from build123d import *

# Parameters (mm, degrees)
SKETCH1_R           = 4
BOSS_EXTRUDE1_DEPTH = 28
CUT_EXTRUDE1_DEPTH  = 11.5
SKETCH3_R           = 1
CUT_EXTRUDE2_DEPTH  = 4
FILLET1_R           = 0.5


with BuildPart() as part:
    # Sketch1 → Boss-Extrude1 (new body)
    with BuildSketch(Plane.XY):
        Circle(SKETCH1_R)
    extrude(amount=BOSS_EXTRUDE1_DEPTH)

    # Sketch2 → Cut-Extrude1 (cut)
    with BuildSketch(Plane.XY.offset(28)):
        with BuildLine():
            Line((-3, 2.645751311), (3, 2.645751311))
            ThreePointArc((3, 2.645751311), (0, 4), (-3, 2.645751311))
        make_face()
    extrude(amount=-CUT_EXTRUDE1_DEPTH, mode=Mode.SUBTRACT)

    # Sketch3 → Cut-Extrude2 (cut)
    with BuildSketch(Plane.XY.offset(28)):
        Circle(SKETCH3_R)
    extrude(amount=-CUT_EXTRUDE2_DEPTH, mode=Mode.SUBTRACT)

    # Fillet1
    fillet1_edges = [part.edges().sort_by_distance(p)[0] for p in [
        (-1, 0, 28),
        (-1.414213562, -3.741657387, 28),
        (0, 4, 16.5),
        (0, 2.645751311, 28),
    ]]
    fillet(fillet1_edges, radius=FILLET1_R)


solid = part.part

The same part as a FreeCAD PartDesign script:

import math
import FreeCAD as App
import Part
import Sketcher
from FreeCAD import Vector


def edges_at(feature, points):
    """Names of the edges that pass closest to the given points."""
    edges = feature.Shape.Edges
    near = lambda p: min(range(len(edges)), key=lambda i: edges[i].distToShape(Part.Vertex(*p))[0])
    return sorted({f"Edge{near(p) + 1}" for p in points})

doc = App.newDocument("Part")
params = doc.addObject("Spreadsheet::Sheet", "Params")
for row, (alias, value) in enumerate([
    ("sketch1_diameter", "8 mm"),
    ("pad1_length", "28 mm"),
    ("sketch2_radius", "4 mm"),
    ("sketch2_width", "6 mm"),
    ("pocket1_length", "11.5 mm"),
    ("sketch3_diameter", "2 mm"),
    ("pocket2_length", "4 mm"),
    ("fillet_radius", "0.5 mm"),
], start=1):
    params.set(f"A{row}", alias)
    params.set(f"B{row}", "=" + value)
    params.setAlias(f"B{row}", alias)

body = doc.addObject("PartDesign::Body", "Body")

# Sketch on XY plane
sketch1 = body.newObject("Sketcher::SketchObject", "Sketch")
sketch1.AttachmentSupport = (doc.getObject("XY_Plane"), [""])
sketch1.MapMode = "FlatFace"
sketch1.addGeometry(Part.Circle(Vector(0, 0, 0), Vector(0, 0, 1), 4), False)
sketch1.addConstraint([
    Sketcher.Constraint("Coincident", 0, 3, -1, 1),
    Sketcher.Constraint("Diameter", 0, 8.0),
])
sketch1.setExpression("Constraints[1]", "Params.sketch1_diameter")
pad1 = body.newObject("PartDesign::Pad", "Pad")
pad1.Profile = sketch1
pad1.setExpression("Length", "Params.pad1_length")

# Sketch on XY plane
sketch2 = body.newObject("Sketcher::SketchObject", "Sketch001")
sketch2.AttachmentSupport = (doc.getObject("XY_Plane"), [""])
sketch2.MapMode = "FlatFace"
sketch2.AttachmentOffset = App.Placement(Vector(0, 0, 28), App.Rotation())
sketch2.addGeometry([
    Part.LineSegment(Vector(-3, 2.6, 0), Vector(3, 2.6, 0)),
    Part.ArcOfCircle(Part.Circle(Vector(0, 0, 0), Vector(0, 0, 1), 4), math.radians(41), math.radians(139)),
], False)
sketch2.addConstraint([
    Sketcher.Constraint("Coincident", 0, 1, 1, 2),
    Sketcher.Constraint("Coincident", 1, 1, 0, 2),
    Sketcher.Constraint("Horizontal", 0),
    Sketcher.Constraint("Coincident", 1, 3, -1, 1),
    Sketcher.Constraint("Radius", 1, 4.0),
    Sketcher.Constraint("DistanceX", 0, 1, 0, 2, 6.0),
])
sketch2.setExpression("Constraints[4]", "Params.sketch2_radius")
sketch2.setExpression("Constraints[5]", "Params.sketch2_width")
pocket1 = body.newObject("PartDesign::Pocket", "Pocket")
pocket1.Profile = sketch2
pocket1.setExpression("Length", "Params.pocket1_length")

# Sketch on XY plane
sketch3 = body.newObject("Sketcher::SketchObject", "Sketch002")
sketch3.AttachmentSupport = (doc.getObject("XY_Plane"), [""])
sketch3.MapMode = "FlatFace"
sketch3.AttachmentOffset = App.Placement(Vector(0, 0, 28), App.Rotation())
sketch3.addGeometry(Part.Circle(Vector(0, 0, 0), Vector(0, 0, 1), 1), False)
sketch3.addConstraint([
    Sketcher.Constraint("Coincident", 0, 3, -1, 1),
    Sketcher.Constraint("Diameter", 0, 2.0),
])
sketch3.setExpression("Constraints[1]", "Params.sketch3_diameter")
pocket2 = body.newObject("PartDesign::Pocket", "Pocket001")
pocket2.Profile = sketch3
pocket2.setExpression("Length", "Params.pocket2_length")
doc.recompute()

fillet = body.newObject("PartDesign::Fillet", "Fillet")
fillet.Base = (pocket2, edges_at(pocket2, [
    (-1, 0, 28),
    (-1.414, -3.742, 28),
    (0, 4, 16.5),
    (0, 2.646, 28),
]))
fillet.setExpression("Radius", "Params.fillet_radius")

doc.recompute()
